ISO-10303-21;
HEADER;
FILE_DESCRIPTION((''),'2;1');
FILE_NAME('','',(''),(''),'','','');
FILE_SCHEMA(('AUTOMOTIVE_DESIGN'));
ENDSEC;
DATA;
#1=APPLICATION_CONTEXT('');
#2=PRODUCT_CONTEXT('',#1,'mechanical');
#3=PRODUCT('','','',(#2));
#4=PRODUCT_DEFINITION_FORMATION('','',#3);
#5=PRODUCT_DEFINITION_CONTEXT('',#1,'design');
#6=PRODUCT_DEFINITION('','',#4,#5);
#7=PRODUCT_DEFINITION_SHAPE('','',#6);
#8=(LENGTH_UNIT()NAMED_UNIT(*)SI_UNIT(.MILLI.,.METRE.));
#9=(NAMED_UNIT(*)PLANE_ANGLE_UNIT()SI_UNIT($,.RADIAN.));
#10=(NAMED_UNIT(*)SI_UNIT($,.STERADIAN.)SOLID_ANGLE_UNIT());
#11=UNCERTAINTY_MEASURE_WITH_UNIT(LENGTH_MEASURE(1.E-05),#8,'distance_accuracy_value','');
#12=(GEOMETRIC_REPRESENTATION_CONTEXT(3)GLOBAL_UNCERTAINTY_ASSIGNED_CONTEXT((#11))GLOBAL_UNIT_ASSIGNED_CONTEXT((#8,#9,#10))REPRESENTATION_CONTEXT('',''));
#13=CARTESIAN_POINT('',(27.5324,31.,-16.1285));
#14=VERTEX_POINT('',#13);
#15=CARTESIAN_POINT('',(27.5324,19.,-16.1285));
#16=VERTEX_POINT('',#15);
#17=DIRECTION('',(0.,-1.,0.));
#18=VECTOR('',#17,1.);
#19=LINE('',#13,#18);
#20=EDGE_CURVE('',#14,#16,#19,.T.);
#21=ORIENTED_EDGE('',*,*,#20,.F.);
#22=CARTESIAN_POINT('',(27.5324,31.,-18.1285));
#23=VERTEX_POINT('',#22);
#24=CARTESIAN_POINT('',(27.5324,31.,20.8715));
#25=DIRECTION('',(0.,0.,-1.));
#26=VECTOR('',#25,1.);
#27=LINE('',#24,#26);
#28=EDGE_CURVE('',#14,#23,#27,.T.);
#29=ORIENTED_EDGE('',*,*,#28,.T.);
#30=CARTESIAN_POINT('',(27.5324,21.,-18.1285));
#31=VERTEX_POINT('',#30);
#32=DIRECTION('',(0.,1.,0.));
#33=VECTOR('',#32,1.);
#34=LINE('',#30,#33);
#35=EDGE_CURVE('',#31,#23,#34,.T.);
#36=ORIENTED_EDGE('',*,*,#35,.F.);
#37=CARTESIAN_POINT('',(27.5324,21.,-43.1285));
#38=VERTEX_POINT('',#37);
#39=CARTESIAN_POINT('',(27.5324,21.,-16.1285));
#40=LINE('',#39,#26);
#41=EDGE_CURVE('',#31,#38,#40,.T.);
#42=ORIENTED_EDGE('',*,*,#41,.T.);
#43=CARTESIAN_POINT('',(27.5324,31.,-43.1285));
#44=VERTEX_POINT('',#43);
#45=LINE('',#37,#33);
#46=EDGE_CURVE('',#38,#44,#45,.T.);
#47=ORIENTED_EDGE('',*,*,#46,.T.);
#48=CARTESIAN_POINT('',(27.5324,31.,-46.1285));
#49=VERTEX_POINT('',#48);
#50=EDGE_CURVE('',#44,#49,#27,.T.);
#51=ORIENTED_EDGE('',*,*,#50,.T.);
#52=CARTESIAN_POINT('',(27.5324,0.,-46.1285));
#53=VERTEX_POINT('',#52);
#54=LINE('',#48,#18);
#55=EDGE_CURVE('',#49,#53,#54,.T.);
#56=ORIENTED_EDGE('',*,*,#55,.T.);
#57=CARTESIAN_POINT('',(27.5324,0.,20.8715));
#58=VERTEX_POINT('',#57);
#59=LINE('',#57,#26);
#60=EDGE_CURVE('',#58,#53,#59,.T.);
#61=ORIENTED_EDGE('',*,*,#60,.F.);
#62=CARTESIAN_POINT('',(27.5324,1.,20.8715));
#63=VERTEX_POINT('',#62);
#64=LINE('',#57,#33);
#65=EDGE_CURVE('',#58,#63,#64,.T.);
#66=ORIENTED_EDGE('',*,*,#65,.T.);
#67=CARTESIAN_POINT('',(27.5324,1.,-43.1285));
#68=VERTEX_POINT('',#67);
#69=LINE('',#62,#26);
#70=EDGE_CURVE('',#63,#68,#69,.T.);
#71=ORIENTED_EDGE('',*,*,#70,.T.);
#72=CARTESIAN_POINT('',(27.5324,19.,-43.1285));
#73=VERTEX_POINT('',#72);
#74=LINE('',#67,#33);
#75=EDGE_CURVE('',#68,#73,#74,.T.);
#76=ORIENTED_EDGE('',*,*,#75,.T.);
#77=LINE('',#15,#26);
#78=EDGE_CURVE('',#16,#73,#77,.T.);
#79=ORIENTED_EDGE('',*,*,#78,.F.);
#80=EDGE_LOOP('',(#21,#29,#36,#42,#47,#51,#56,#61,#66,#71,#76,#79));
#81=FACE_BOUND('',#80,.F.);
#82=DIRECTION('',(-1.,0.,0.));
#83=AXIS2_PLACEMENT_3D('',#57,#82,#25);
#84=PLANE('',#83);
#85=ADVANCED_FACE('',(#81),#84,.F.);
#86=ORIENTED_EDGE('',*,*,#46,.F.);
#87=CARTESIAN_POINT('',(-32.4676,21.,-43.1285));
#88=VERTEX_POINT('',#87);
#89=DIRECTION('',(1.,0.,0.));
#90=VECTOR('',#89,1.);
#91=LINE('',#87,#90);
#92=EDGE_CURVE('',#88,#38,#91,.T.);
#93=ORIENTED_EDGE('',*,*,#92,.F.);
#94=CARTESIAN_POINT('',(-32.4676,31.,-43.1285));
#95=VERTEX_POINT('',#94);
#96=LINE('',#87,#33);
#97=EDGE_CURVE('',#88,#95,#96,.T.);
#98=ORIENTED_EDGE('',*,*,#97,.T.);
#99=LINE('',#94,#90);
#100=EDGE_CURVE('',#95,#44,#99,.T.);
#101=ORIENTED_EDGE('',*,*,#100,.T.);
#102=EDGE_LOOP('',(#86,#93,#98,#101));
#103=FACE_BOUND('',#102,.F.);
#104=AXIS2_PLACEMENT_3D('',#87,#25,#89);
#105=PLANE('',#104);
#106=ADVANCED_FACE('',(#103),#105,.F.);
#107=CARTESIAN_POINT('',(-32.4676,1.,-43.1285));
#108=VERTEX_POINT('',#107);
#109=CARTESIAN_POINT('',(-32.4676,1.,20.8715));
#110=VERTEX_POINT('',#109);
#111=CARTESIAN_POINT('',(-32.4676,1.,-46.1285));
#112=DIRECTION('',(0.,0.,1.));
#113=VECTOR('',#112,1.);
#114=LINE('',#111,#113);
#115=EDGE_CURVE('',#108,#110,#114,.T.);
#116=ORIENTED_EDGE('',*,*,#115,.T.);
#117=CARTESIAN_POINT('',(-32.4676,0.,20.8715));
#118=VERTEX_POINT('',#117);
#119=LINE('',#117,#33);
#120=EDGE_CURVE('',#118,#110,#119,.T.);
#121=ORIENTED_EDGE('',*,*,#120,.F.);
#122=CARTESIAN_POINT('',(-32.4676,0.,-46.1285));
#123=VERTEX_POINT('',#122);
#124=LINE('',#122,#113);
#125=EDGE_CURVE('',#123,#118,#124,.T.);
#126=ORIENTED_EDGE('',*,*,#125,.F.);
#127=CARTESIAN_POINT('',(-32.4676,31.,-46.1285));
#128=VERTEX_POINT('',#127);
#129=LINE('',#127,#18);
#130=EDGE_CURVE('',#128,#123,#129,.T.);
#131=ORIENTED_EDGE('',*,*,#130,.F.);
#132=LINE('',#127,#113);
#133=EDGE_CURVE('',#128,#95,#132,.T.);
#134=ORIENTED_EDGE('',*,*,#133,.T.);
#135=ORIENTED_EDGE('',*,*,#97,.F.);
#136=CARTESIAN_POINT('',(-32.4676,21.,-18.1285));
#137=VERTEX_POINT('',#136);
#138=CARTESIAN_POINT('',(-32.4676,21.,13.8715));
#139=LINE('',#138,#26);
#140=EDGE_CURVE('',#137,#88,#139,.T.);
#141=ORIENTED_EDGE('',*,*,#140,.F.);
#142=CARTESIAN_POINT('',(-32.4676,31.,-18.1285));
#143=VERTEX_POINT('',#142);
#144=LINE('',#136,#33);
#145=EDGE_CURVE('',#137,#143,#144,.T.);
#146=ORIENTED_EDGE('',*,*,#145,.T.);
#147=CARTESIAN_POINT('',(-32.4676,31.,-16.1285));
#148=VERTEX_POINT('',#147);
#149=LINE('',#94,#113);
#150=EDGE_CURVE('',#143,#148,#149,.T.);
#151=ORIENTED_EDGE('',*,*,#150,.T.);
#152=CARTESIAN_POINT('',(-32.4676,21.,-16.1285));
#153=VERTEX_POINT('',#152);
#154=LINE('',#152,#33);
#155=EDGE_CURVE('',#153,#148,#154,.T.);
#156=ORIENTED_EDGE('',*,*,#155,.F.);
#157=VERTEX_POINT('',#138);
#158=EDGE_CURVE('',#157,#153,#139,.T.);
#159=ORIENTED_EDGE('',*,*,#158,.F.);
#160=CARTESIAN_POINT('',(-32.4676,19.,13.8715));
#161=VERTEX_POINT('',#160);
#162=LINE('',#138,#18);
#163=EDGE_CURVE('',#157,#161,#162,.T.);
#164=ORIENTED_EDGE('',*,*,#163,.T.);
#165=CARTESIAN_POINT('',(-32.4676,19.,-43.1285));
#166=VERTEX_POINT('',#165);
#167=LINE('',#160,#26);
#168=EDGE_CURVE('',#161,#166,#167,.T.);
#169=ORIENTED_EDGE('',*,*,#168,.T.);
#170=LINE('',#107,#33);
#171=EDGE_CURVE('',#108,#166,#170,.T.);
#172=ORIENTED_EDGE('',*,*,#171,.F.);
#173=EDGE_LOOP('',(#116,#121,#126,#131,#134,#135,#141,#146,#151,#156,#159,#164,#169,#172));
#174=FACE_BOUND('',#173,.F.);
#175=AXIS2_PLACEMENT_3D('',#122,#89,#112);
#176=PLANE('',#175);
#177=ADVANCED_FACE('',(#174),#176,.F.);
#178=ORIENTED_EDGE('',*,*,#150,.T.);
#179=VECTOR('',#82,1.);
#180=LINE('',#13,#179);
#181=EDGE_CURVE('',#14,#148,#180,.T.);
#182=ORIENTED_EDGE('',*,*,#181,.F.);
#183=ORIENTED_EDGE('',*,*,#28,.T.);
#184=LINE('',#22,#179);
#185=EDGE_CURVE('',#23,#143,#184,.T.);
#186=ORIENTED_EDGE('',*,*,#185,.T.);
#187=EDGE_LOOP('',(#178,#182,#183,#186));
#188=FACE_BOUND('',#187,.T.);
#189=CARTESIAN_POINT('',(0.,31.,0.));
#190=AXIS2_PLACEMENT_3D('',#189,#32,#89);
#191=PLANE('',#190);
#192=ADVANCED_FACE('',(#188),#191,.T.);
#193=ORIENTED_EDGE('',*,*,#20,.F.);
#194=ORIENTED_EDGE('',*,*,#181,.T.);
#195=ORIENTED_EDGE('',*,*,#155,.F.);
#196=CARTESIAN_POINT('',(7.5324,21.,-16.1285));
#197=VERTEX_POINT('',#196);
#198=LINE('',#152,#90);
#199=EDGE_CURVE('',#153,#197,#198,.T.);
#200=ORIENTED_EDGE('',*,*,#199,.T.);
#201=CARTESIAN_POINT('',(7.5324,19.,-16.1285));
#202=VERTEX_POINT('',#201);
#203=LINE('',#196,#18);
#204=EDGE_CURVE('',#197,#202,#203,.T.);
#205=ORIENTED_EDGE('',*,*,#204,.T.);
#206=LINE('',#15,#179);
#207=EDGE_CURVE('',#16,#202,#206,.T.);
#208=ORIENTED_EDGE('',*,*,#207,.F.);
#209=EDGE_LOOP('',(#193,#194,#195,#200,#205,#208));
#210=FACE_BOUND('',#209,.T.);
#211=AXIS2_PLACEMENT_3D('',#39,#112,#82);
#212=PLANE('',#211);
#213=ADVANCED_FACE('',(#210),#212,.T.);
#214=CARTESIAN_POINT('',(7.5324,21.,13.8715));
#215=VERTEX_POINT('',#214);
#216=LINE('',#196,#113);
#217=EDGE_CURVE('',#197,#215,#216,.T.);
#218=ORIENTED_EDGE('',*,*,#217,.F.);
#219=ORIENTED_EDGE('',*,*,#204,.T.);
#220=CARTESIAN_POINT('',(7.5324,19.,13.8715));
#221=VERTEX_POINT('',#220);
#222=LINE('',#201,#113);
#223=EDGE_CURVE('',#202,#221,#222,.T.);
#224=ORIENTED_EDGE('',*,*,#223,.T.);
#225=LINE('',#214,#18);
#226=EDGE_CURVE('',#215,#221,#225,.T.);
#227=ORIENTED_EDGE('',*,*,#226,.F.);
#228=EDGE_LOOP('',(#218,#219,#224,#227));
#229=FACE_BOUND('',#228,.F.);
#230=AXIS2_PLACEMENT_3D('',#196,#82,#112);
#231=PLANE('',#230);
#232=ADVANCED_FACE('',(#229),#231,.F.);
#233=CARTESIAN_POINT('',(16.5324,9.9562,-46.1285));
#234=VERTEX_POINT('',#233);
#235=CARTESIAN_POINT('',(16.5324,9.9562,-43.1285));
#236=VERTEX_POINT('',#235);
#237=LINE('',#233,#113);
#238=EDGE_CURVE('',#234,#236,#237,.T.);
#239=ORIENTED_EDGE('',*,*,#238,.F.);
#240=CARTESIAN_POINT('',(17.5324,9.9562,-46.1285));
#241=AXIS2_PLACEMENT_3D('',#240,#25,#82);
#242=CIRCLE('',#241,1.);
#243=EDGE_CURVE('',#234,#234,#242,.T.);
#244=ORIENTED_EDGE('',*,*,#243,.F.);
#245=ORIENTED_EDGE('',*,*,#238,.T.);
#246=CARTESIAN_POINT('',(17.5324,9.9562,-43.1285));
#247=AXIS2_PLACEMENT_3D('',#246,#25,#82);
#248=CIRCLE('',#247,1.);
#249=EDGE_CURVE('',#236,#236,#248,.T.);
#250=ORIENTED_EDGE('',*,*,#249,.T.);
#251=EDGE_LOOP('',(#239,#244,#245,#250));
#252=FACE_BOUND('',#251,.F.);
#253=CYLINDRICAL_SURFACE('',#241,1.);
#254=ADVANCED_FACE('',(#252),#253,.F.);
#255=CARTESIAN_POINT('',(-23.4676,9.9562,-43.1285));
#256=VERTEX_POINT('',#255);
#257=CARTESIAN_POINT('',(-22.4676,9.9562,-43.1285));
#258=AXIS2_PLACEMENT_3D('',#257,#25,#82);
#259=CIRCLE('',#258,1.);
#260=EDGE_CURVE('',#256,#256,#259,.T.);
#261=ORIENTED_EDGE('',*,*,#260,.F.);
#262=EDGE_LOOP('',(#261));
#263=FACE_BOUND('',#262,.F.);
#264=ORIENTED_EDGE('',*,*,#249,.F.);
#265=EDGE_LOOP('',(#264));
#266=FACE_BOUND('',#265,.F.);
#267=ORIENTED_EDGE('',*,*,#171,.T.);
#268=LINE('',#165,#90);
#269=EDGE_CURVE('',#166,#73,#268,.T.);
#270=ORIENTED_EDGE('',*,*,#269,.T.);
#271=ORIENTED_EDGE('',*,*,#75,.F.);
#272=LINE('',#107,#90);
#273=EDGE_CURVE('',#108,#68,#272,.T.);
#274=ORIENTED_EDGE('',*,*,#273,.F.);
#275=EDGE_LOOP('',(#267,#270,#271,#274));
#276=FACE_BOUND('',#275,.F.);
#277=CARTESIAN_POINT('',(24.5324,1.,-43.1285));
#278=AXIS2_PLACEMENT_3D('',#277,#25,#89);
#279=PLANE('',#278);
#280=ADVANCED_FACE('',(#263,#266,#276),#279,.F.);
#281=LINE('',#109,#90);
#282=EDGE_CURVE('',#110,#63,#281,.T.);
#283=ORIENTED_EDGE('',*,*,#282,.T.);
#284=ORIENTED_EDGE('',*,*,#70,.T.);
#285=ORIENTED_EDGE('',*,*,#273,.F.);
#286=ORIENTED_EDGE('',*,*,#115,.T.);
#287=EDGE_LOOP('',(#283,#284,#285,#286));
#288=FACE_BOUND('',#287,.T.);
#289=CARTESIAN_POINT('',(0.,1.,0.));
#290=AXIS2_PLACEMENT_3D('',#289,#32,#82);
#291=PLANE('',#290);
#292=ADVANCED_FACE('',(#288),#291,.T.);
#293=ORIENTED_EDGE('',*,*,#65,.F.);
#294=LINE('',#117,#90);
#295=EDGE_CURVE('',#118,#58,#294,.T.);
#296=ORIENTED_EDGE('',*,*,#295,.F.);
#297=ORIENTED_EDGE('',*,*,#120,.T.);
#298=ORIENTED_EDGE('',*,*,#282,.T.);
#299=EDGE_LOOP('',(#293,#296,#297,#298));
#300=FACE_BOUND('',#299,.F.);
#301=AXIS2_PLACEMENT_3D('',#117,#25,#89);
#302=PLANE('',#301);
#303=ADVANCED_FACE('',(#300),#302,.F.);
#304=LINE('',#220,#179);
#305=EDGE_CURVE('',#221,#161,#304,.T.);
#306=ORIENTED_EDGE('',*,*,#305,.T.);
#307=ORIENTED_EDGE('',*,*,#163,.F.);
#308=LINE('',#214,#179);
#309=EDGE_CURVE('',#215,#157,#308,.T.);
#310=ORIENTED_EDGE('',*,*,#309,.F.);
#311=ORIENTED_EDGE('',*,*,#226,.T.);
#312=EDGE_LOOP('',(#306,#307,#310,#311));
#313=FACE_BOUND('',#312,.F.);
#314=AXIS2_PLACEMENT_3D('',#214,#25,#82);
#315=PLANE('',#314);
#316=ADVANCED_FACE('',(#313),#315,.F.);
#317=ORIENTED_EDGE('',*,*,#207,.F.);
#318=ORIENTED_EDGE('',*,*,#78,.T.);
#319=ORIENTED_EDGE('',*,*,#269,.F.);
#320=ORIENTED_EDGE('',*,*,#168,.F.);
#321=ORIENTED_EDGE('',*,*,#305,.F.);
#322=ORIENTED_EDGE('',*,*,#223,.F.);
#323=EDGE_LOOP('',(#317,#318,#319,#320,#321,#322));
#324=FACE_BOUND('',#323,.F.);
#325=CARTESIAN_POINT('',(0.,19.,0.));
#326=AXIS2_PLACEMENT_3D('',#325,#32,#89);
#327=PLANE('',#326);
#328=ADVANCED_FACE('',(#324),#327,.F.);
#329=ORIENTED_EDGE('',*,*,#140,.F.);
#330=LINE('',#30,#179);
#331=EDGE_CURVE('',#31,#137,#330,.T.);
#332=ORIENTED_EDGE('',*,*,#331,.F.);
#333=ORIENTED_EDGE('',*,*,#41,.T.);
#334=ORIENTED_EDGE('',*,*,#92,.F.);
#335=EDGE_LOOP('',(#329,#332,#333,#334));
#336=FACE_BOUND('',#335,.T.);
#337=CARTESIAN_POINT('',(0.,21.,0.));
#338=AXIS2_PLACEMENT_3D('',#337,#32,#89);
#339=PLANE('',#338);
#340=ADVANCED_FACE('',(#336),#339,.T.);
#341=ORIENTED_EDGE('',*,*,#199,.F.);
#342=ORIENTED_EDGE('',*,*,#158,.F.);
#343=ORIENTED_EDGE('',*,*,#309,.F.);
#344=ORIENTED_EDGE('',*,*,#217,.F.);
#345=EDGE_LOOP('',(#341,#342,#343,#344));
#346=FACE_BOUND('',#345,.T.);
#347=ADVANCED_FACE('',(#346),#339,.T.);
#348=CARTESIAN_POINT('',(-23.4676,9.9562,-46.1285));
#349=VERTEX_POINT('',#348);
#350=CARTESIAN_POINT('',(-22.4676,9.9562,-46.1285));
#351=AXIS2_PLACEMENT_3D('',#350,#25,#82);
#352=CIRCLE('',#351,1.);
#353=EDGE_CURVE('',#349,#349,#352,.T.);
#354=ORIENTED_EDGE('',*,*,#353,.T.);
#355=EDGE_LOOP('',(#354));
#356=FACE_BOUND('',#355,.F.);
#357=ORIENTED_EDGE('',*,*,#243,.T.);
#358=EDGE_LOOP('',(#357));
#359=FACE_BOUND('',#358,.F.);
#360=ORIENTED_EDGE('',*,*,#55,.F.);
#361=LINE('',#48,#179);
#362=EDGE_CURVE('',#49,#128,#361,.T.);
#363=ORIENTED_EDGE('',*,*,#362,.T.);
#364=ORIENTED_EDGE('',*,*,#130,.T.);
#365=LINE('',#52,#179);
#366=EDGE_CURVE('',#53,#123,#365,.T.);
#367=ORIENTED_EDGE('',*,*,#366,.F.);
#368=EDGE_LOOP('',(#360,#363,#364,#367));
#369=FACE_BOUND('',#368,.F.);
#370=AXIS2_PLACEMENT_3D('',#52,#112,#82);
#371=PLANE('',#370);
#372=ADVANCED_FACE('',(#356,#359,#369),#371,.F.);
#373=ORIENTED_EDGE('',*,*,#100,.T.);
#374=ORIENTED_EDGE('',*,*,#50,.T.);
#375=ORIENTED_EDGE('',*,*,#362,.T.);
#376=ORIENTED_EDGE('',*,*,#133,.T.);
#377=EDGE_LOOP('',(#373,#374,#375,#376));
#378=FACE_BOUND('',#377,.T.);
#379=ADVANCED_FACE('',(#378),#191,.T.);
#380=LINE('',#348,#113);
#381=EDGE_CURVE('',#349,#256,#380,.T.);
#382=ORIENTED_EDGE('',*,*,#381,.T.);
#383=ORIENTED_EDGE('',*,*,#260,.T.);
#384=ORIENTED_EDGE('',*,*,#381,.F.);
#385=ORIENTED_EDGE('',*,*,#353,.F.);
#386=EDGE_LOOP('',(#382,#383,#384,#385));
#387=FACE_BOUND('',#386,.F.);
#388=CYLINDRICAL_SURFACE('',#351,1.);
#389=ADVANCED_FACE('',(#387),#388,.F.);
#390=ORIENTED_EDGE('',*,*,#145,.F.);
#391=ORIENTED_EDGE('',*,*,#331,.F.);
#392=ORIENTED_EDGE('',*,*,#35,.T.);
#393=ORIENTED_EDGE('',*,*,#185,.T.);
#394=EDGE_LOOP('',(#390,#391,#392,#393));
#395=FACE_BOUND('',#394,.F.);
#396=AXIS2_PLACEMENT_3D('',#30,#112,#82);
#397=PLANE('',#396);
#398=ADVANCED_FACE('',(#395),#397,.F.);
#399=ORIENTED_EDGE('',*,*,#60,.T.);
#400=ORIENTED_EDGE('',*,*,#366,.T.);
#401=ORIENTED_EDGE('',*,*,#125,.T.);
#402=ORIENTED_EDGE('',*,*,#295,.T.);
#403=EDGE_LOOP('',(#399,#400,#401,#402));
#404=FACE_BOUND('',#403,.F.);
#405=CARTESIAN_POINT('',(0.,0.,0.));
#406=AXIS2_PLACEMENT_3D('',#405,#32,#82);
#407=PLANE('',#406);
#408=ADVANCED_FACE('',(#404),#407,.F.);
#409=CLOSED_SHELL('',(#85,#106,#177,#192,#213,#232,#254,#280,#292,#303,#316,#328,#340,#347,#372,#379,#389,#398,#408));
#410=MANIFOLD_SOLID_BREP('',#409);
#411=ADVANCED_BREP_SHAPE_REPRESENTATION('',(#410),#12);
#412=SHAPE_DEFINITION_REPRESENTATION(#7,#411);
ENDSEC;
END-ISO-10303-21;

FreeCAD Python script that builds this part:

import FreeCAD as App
import Part
import Sketcher

V = App.Vector


def add_polygon(sketch, points):
    """Adds a closed chain of lines whose ends are joined by coincident constraints."""
    first, n = sketch.GeometryCount, len(points)
    for a, b in zip(points, points[1:] + points[:1]):
        sketch.addGeometry(Part.LineSegment(App.Vector(*a, 0), App.Vector(*b, 0)), False)
    for i in range(n):
        sketch.addConstraint(Sketcher.Constraint("Coincident", first + i, 2, first + (i + 1) % n, 1))

doc = App.newDocument("Part")
body = doc.addObject("PartDesign::Body", "Body")

# Sketch on XZ plane
sketch1 = body.newObject("Sketcher::SketchObject", "Sketch")
sketch1.AttachmentSupport = (doc.getObject("XZ_Plane"), [""])
sketch1.MapMode = "FlatFace"
add_polygon(sketch1, [(-32, -46), (-32, 21), (28, 21), (28, -46)])  # lines 0-3
sketch1.addConstraint(Sketcher.Constraint("Vertical", 0))
sketch1.addConstraint(Sketcher.Constraint("Horizontal", 1))
sketch1.addConstraint(Sketcher.Constraint("Vertical", 2))
sketch1.addConstraint(Sketcher.Constraint("Horizontal", 3))
sketch1.addConstraint(Sketcher.Constraint("DistanceX", 1, 1, 1, 2, 60.0))
sketch1.addConstraint(Sketcher.Constraint("DistanceY", 0, 1, 0, 2, 67.0))
sketch1.addConstraint(Sketcher.Constraint("DistanceX", 0, 2, -1, 1, 32.4676))
sketch1.addConstraint(Sketcher.Constraint("DistanceY", -1, 1, 0, 2, 20.8715))
pad1 = body.newObject("PartDesign::Pad", "Pad")
pad1.Profile = sketch1
pad1.Length = 1
pad1.Reversed = True

# Sketch on XZ plane
sketch2 = body.newObject("Sketcher::SketchObject", "Sketch001")
sketch2.AttachmentSupport = (doc.getObject("XZ_Plane"), [""])
sketch2.MapMode = "FlatFace"
sketch2.AttachmentOffset = App.Placement(V(0, 0, -1), App.Rotation())
add_polygon(sketch2, [(27.5, -43.1), (27.5, -46.1), (-32.5, -46.1), (-32.5, -43.1)])  # lines 0-3
sketch2.addConstraint(Sketcher.Constraint("Vertical", 0))
sketch2.addConstraint(Sketcher.Constraint("Horizontal", 1))
sketch2.addConstraint(Sketcher.Constraint("Vertical", 2))
sketch2.addConstraint(Sketcher.Constraint("Horizontal", 3))
sketch2.addConstraint(Sketcher.Constraint("DistanceY", 0, 2, 0, 1, 3.0))
sketch2.addConstraint(Sketcher.Constraint("DistanceX", 1, 2, 1, 1, 60.0))
sketch2.addConstraint(Sketcher.Constraint("DistanceX", -1, 1, 0, 2, 27.5324))
sketch2.addConstraint(Sketcher.Constraint("DistanceY", 0, 2, -1, 1, 46.1285))
pad2 = body.newObject("PartDesign::Pad", "Pad001")
pad2.Profile = sketch2
pad2.Length = 20
pad2.Reversed = True

# Sketch on XZ plane
sketch3 = body.newObject("Sketcher::SketchObject", "Sketch002")
sketch3.AttachmentSupport = (doc.getObject("XZ_Plane"), [""])
sketch3.MapMode = "FlatFace"
sketch3.AttachmentOffset = App.Placement(V(0, 0, -21), App.Rotation())
add_polygon(sketch3, [(28, -43), (-32, -43), (-32, 14), (8, 14), (8, -16), (28, -16)])  # lines 0-5
sketch3.addConstraint(Sketcher.Constraint("Horizontal", 0))
sketch3.addConstraint(Sketcher.Constraint("Vertical", 1))
sketch3.addConstraint(Sketcher.Constraint("Horizontal", 2))
sketch3.addConstraint(Sketcher.Constraint("Vertical", 3))
sketch3.addConstraint(Sketcher.Constraint("Horizontal", 4))
sketch3.addConstraint(Sketcher.Constraint("Vertical", 5))
sketch3.addConstraint(Sketcher.Constraint("DistanceX", 2, 1, 2, 2, 40.0))
sketch3.addConstraint(Sketcher.Constraint("DistanceY", 3, 2, 3, 1, 30.0))
sketch3.addConstraint(Sketcher.Constraint("DistanceX", 0, 2, 0, 1, 60.0))
sketch3.addConstraint(Sketcher.Constraint("DistanceY", 1, 1, 1, 2, 57.0))
sketch3.addConstraint(Sketcher.Constraint("DistanceX", 0, 2, -1, 1, 32.4676))
sketch3.addConstraint(Sketcher.Constraint("DistanceY", 0, 2, -1, 1, 43.1285))
pad3 = body.newObject("PartDesign::Pad", "Pad002")
pad3.Profile = sketch3
pad3.Length = 2

# Sketch on XZ plane
sketch4 = body.newObject("Sketcher::SketchObject", "Sketch003")
sketch4.AttachmentSupport = (doc.getObject("XZ_Plane"), [""])
sketch4.MapMode = "FlatFace"
sketch4.AttachmentOffset = App.Placement(V(0, 0, -21), App.Rotation())
add_polygon(sketch4, [(27.5, -43.1), (27.5, -46.1), (-32.5, -46.1), (-32.5, -43.1)])  # lines 0-3
add_polygon(sketch4, [(27.5, -16.1), (27.5, -18.1), (-32.5, -18.1), (-32.5, -16.1)])  # lines 4-7
sketch4.addConstraint(Sketcher.Constraint("Vertical", 0))
sketch4.addConstraint(Sketcher.Constraint("Horizontal", 1))
sketch4.addConstraint(Sketcher.Constraint("Vertical", 2))
sketch4.addConstraint(Sketcher.Constraint("Horizontal", 3))
sketch4.addConstraint(Sketcher.Constraint("Vertical", 4))
sketch4.addConstraint(Sketcher.Constraint("Horizontal", 5))
sketch4.addConstraint(Sketcher.Constraint("Vertical", 6))
sketch4.addConstraint(Sketcher.Constraint("Horizontal", 7))
sketch4.addConstraint(Sketcher.Constraint("Vertical", 3, 2, 4, 2))
sketch4.addConstraint(Sketcher.Constraint("Vertical", 2, 2, 5, 2))
sketch4.addConstraint(Sketcher.Constraint("DistanceY", 4, 2, 4, 1, 2.0))
sketch4.addConstraint(Sketcher.Constraint("DistanceY", 3, 2, 4, 2, 25.0))
sketch4.addConstraint(Sketcher.Constraint("DistanceY", 1, 2, 6, 2, 30.0))
sketch4.addConstraint(Sketcher.Constraint("DistanceX", 1, 2, 1, 1, 60.0))
sketch4.addConstraint(Sketcher.Constraint("DistanceX", -1, 1, 0, 2, 27.5324))
sketch4.addConstraint(Sketcher.Constraint("DistanceY", 0, 2, -1, 1, 46.1285))
pad4 = body.newObject("PartDesign::Pad", "Pad003")
pad4.Profile = sketch4
pad4.Length = 10
pad4.Reversed = True

# Sketch on XY plane
sketch5 = body.newObject("Sketcher::SketchObject", "Sketch004")
sketch5.AttachmentSupport = (doc.getObject("XY_Plane"), [""])
sketch5.MapMode = "FlatFace"
sketch5.AttachmentOffset = App.Placement(V(0, 0, -46.1285), App.Rotation())
sketch5.addGeometry(Part.Circle(V(17.5, 10, 0), V(0, 0, 1), 1), False)
sketch5.addGeometry(Part.Circle(V(-22.5, 10, 0), V(0, 0, 1), 1), False)
sketch5.addConstraint(Sketcher.Constraint("Equal", 0, 1))
sketch5.addConstraint(Sketcher.Constraint("Horizontal", 0, 3, 1, 3))
sketch5.addConstraint(Sketcher.Constraint("Diameter", 0, 2.0))
sketch5.addConstraint(Sketcher.Constraint("DistanceX", 1, 3, 0, 3, 40.0))
sketch5.addConstraint(Sketcher.Constraint("DistanceX", -1, 1, 0, 3, 17.5324))
sketch5.addConstraint(Sketcher.Constraint("DistanceY", -1, 1, 0, 3, 9.9562))
pocket1 = body.newObject("PartDesign::Pocket", "Pocket")
pocket1.Profile = sketch5
pocket1.Length = 20
pocket1.Reversed = True

doc.recompute()
